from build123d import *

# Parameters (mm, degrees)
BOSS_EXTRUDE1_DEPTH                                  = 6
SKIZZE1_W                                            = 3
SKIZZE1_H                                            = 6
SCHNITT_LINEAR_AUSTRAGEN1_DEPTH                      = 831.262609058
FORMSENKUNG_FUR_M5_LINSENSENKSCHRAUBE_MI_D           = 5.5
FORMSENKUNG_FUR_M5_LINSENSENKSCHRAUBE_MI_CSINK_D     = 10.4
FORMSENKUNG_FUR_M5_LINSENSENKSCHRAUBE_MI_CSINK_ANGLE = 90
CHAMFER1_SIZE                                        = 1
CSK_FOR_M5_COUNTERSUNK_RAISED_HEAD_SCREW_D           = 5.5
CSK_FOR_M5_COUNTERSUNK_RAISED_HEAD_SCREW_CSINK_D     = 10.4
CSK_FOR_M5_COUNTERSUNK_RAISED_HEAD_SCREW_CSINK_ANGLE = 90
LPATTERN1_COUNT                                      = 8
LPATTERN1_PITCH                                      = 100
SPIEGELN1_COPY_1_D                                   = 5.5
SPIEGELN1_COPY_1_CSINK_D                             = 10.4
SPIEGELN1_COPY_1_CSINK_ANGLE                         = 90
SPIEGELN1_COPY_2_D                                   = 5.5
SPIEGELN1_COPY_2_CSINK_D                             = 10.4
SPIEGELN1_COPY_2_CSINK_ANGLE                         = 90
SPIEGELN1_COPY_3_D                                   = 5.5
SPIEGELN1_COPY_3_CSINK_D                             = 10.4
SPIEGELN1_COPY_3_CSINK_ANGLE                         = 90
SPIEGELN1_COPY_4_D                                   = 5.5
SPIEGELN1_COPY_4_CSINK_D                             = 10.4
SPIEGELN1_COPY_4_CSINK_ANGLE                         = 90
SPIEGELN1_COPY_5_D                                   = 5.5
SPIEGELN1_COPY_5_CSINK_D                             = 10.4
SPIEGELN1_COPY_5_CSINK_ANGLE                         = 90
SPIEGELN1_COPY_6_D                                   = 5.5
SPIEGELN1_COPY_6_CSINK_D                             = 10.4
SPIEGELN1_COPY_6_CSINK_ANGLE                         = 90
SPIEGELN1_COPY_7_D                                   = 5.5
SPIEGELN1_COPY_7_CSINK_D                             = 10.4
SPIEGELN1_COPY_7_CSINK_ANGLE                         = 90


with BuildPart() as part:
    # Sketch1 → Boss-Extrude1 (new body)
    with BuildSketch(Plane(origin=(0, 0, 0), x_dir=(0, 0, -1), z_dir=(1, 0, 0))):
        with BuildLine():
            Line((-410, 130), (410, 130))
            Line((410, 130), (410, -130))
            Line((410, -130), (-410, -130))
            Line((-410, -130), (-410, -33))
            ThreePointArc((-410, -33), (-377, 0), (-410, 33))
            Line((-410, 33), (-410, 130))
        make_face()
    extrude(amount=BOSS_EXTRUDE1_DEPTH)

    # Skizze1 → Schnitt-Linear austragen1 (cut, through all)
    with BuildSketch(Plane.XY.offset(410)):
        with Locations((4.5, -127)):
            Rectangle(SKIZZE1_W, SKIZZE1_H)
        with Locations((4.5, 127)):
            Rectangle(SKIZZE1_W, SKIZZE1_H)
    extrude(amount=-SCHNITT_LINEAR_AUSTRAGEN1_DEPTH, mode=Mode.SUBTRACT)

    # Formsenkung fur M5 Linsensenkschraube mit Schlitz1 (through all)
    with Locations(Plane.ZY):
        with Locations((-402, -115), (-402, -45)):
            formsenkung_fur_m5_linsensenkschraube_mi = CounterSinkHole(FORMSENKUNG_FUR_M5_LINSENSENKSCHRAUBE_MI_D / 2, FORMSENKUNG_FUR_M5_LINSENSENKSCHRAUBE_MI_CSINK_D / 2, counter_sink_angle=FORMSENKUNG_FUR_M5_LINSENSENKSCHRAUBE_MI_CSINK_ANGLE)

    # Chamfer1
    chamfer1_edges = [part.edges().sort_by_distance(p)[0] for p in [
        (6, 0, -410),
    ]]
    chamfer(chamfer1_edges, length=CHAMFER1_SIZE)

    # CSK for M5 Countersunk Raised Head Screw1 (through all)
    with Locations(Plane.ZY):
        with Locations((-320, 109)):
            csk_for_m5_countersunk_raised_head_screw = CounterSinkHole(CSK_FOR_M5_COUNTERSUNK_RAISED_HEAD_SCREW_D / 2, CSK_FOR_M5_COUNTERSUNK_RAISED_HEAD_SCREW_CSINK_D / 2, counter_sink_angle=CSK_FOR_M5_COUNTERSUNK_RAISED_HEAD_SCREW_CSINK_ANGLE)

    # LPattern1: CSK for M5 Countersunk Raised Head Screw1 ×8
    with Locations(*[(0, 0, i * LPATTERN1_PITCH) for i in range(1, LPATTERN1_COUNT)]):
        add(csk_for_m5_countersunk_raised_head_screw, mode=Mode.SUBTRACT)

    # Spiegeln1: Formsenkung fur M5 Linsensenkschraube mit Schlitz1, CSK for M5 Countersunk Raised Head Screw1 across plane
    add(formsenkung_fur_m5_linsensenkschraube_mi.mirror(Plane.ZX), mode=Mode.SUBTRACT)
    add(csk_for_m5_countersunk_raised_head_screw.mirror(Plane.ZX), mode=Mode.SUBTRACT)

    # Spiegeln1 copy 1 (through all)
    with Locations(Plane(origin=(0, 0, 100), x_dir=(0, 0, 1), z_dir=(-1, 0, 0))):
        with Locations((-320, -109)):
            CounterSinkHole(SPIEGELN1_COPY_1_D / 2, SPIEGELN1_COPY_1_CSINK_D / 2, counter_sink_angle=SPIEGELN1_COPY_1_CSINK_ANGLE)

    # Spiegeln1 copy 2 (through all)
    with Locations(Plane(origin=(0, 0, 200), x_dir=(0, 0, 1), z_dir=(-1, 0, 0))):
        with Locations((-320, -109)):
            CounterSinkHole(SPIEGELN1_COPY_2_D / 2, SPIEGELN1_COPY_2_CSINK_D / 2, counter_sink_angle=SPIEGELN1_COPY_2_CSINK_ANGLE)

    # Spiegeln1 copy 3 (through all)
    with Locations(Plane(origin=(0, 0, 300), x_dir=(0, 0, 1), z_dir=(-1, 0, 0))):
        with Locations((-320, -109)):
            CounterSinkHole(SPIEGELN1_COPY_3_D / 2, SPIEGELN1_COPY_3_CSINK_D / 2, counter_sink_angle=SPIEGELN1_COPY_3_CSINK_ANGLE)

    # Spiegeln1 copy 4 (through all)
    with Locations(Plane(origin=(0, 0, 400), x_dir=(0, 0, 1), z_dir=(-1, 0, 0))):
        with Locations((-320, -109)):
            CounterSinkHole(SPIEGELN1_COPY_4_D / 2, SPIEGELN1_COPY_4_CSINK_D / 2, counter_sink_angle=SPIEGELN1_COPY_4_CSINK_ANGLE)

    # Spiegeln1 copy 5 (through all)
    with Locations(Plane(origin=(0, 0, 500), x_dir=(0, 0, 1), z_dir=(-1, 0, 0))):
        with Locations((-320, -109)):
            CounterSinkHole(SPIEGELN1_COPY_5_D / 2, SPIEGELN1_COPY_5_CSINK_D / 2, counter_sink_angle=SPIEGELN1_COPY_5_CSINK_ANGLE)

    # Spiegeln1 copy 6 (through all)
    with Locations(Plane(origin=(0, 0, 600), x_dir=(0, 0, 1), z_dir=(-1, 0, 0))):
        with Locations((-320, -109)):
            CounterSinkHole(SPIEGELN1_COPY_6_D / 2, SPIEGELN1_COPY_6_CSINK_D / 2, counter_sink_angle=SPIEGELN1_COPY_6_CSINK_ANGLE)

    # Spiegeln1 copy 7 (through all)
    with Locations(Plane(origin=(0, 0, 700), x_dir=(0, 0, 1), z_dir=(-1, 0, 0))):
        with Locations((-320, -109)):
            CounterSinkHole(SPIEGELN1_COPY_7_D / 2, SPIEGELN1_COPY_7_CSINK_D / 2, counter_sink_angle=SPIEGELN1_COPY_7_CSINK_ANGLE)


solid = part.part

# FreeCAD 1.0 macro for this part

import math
import FreeCAD as App
import Part
import Sketcher
from FreeCAD import Vector
Q = App.Units.Quantity


def edges_at(feature, points):
    """Names of the edges that pass closest to the given points."""
    edges = feature.Shape.Edges
    near = lambda p: min(range(len(edges)), key=lambda i: edges[i].distToShape(Part.Vertex(*p))[0])
    return sorted({f"Edge{near(p) + 1}" for p in points})


def add_polygon(sketch, points):
    """Adds a closed chain of lines whose ends are joined by coincident constraints."""
    first, n = sketch.GeometryCount, len(points)
    for a, b in zip(points, points[1:] + points[:1]):
        sketch.addGeometry(Part.LineSegment(App.Vector(*a, 0), App.Vector(*b, 0)), False)
    for i in range(n):
        sketch.addConstraint(Sketcher.Constraint("Coincident", first + i, 2, first + (i + 1) % n, 1))

doc = App.newDocument("Part")
body = doc.addObject("PartDesign::Body", "Body")

# Sketch on YZ plane
sketch1 = body.newObject("Sketcher::SketchObject", "Sketch")
sketch1.AttachmentSupport = (doc.getObject("YZ_Plane"), [""])
sketch1.MapMode = "FlatFace"
sketch1.addGeometry([
    Part.LineSegment(Vector(130, -410, 0), Vector(130, 410, 0)),  # 0
    Part.LineSegment(Vector(130, 410, 0), Vector(33, 410, 0)),  # 1
    Part.ArcOfCircle(Part.Circle(Vector(0, 410, 0), Vector(0, 0, 1), 33), math.radians(180), math.radians(360)),  # 2
    Part.LineSegment(Vector(-33, 410, 0), Vector(-130, 410, 0)),  # 3
    Part.LineSegment(Vector(-130, 410, 0), Vector(-130, -410, 0)),  # 4
    Part.LineSegment(Vector(-130, -410, 0), Vector(130, -410, 0)),  # 5
], False)
sketch1.addConstraint([
    Sketcher.Constraint("Coincident", 0, 2, 1, 1),
    Sketcher.Constraint("Coincident", 1, 2, 2, 2),
    Sketcher.Constraint("Coincident", 2, 1, 3, 1),
    Sketcher.Constraint("Coincident", 3, 2, 4, 1),
    Sketcher.Constraint("Coincident", 4, 2, 5, 1),
    Sketcher.Constraint("Coincident", 5, 2, 0, 1),
    Sketcher.Constraint("Vertical", 0),
    Sketcher.Constraint("Horizontal", 1),
    Sketcher.Constraint("Horizontal", 3),
    Sketcher.Constraint("Vertical", 4),
    Sketcher.Constraint("Horizontal", 5),
    Sketcher.Constraint("Symmetric", 0, 2, 4, 2, -1, 1),
    Sketcher.Constraint("Symmetric", 1, 2, 2, 1, -2),
    Sketcher.Constraint("Horizontal", 2, 3, 0, 2),
    Sketcher.Constraint("Radius", 2, Q("33 mm")),
    Sketcher.Constraint("DistanceX", 1, 2, 1, 1, Q("97 mm")),
    Sketcher.Constraint("DistanceY", 0, 1, 0, 2, Q("820 mm")),
])
pad1 = body.newObject("PartDesign::Pad", "Pad")
pad1.Profile = sketch1
pad1.Length = 6

# Sketch on XY plane
sketch2 = body.newObject("Sketcher::SketchObject", "Sketch001")
sketch2.AttachmentSupport = (doc.getObject("XY_Plane"), [""])
sketch2.MapMode = "FlatFace"
sketch2.AttachmentOffset = App.Placement(Vector(0, 0, 410), App.Rotation())
add_polygon(sketch2, [(3, -124), (3, -130), (6, -130), (6, -124)])  # lines 0-3
add_polygon(sketch2, [(3, 130), (3, 124), (6, 124), (6, 130)])  # lines 4-7
sketch2.addConstraint([
    Sketcher.Constraint("Vertical", 0),
    Sketcher.Constraint("Horizontal", 1),
    Sketcher.Constraint("Vertical", 2),
    Sketcher.Constraint("Horizontal", 3),
    Sketcher.Constraint("Vertical", 4),
    Sketcher.Constraint("Horizontal", 5),
    Sketcher.Constraint("Vertical", 6),
    Sketcher.Constraint("Horizontal", 7),
    Sketcher.Constraint("Symmetric", 3, 2, 4, 2, -1),
    Sketcher.Constraint("Symmetric", 1, 2, 6, 2, -1),
    Sketcher.Constraint("DistanceX", 1, 1, 1, 2, Q("3 mm")),
    Sketcher.Constraint("DistanceY", 0, 2, 0, 1, Q("6 mm")),
    Sketcher.Constraint("DistanceX", -1, 1, 0, 2, Q("3 mm")),
    Sketcher.Constraint("DistanceY", 0, 2, -1, 1, Q("130 mm")),
])
pocket1 = body.newObject("PartDesign::Pocket", "Pocket")
pocket1.Profile = sketch2
pocket1.Type = "ThroughAll"

# Sketch on YZ plane
sketch3 = body.newObject("Sketcher::SketchObject", "Sketch002")
sketch3.AttachmentSupport = (doc.getObject("YZ_Plane"), [""])
sketch3.MapMode = "FlatFace"
sketch3.addGeometry([
    Part.Circle(Vector(-115, -402, 0), Vector(0, 0, 1), 2.8),
    Part.Circle(Vector(-45, -402, 0), Vector(0, 0, 1), 2.8),
], False)
sketch3.addConstraint([
    Sketcher.Constraint("Equal", 0, 1),
    Sketcher.Constraint("Horizontal", 0, 3, 1, 3),
    Sketcher.Constraint("Diameter", 0, Q("5.5 mm")),
    Sketcher.Constraint("DistanceX", 0, 3, -1, 1, Q("115 mm")),
    Sketcher.Constraint("DistanceY", 0, 3, -1, 1, Q("402 mm")),
    Sketcher.Constraint("DistanceX", 1, 3, -1, 1, Q("45 mm")),
])
doc.recompute()
hole = body.newObject("PartDesign::Hole", "Hole")
hole.Profile = sketch3
hole.ThreadType = "None"
hole.Diameter = 5.5
hole.DepthType = "ThroughAll"
hole.HoleCutType = "Countersink"
hole.HoleCutDiameter = 10.4
hole.HoleCutCountersinkAngle = 90
hole.Reversed = True
doc.recompute()

chamfer = body.newObject("PartDesign::Chamfer", "Chamfer")
chamfer.Base = (hole, edges_at(hole, [(6, 0, -410)]))
chamfer.Size = 1

# Sketch on YZ plane
sketch4 = body.newObject("Sketcher::SketchObject", "Sketch003")
sketch4.AttachmentSupport = (doc.getObject("YZ_Plane"), [""])
sketch4.MapMode = "FlatFace"
sketch4.addGeometry(Part.Circle(Vector(109, -320, 0), Vector(0, 0, 1), 2.8), False)
sketch4.addConstraint([
    Sketcher.Constraint("Diameter", 0, Q("5.5 mm")),
    Sketcher.Constraint("DistanceX", -1, 1, 0, 3, Q("109 mm")),
    Sketcher.Constraint("DistanceY", 0, 3, -1, 1, Q("320 mm")),
])
doc.recompute()
hole2 = body.newObject("PartDesign::Hole", "Hole001")
hole2.Profile = sketch4
hole2.ThreadType = "None"
hole2.Diameter = 5.5
hole2.DepthType = "ThroughAll"
hole2.HoleCutType = "Countersink"
hole2.HoleCutDiameter = 10.4
hole2.HoleCutCountersinkAngle = 90
hole2.Reversed = True
doc.recompute()

linearpattern = body.newObject("PartDesign::LinearPattern", "LinearPattern")
linearpattern.Originals = [hole2]
linearpattern.Direction = (doc.getObject("Z_Axis"), [""])
linearpattern.Mode = "offset"
linearpattern.Offset = 100
linearpattern.Occurrences = 8
body.Tip = linearpattern
doc.recompute()

mirrored = body.newObject("PartDesign::Mirrored", "Mirrored")
mirrored.Originals = [hole, hole2]
mirrored.MirrorPlane = (doc.getObject("XZ_Plane"), [""])
body.Tip = mirrored

# Sketch on YZ plane
sketch5 = body.newObject("Sketcher::SketchObject", "Sketch004")
sketch5.AttachmentSupport = (doc.getObject("YZ_Plane"), [""])
sketch5.MapMode = "FlatFace"
sketch5.addGeometry(Part.Circle(Vector(-109, -220, 0), Vector(0, 0, 1), 2.8), False)
sketch5.addConstraint([
    Sketcher.Constraint("Diameter", 0, Q("5.5 mm")),
    Sketcher.Constraint("DistanceX", 0, 3, -1, 1, Q("109 mm")),
    Sketcher.Constraint("DistanceY", 0, 3, -1, 1, Q("220 mm")),
])
doc.recompute()
hole3 = body.newObject("PartDesign::Hole", "Hole002")
hole3.Profile = sketch5
hole3.ThreadType = "None"
hole3.Diameter = 5.5
hole3.DepthType = "ThroughAll"
hole3.HoleCutType = "Countersink"
hole3.HoleCutDiameter = 10.4
hole3.HoleCutCountersinkAngle = 90
hole3.Reversed = True

# Sketch on YZ plane
sketch6 = body.newObject("Sketcher::SketchObject", "Sketch005")
sketch6.AttachmentSupport = (doc.getObject("YZ_Plane"), [""])
sketch6.MapMode = "FlatFace"
sketch6.addGeometry(Part.Circle(Vector(-109, -120, 0), Vector(0, 0, 1), 2.8), False)
sketch6.addConstraint([
    Sketcher.Constraint("Diameter", 0, Q("5.5 mm")),
    Sketcher.Constraint("DistanceX", 0, 3, -1, 1, Q("109 mm")),
    Sketcher.Constraint("DistanceY", 0, 3, -1, 1, Q("120 mm")),
])
doc.recompute()
hole4 = body.newObject("PartDesign::Hole", "Hole003")
hole4.Profile = sketch6
hole4.ThreadType = "None"
hole4.Diameter = 5.5
hole4.DepthType = "ThroughAll"
hole4.HoleCutType = "Countersink"
hole4.HoleCutDiameter = 10.4
hole4.HoleCutCountersinkAngle = 90
hole4.Reversed = True

# Sketch on YZ plane
sketch7 = body.newObject("Sketcher::SketchObject", "Sketch006")
sketch7.AttachmentSupport = (doc.getObject("YZ_Plane"), [""])
sketch7.MapMode = "FlatFace"
sketch7.addGeometry(Part.Circle(Vector(-109, -20, 0), Vector(0, 0, 1), 2.8), False)
sketch7.addConstraint([
    Sketcher.Constraint("Diameter", 0, Q("5.5 mm")),
    Sketcher.Constraint("DistanceX", 0, 3, -1, 1, Q("109 mm")),
    Sketcher.Constraint("DistanceY", 0, 3, -1, 1, Q("20 mm")),
])
doc.recompute()
hole5 = body.newObject("PartDesign::Hole", "Hole004")
hole5.Profile = sketch7
hole5.ThreadType = "None"
hole5.Diameter = 5.5
hole5.DepthType = "ThroughAll"
hole5.HoleCutType = "Countersink"
hole5.HoleCutDiameter = 10.4
hole5.HoleCutCountersinkAngle = 90
hole5.Reversed = True

# Sketch on YZ plane
sketch8 = body.newObject("Sketcher::SketchObject", "Sketch007")
sketch8.AttachmentSupport = (doc.getObject("YZ_Plane"), [""])
sketch8.MapMode = "FlatFace"
sketch8.addGeometry(Part.Circle(Vector(-109, 80, 0), Vector(0, 0, 1), 2.8), False)
sketch8.addConstraint([
    Sketcher.Constraint("Diameter", 0, Q("5.5 mm")),
    Sketcher.Constraint("DistanceX", 0, 3, -1, 1, Q("109 mm")),
    Sketcher.Constraint("DistanceY", -1, 1, 0, 3, Q("80 mm")),
])
doc.recompute()
hole6 = body.newObject("PartDesign::Hole", "Hole005")
hole6.Profile = sketch8
hole6.ThreadType = "None"
hole6.Diameter = 5.5
hole6.DepthType = "ThroughAll"
hole6.HoleCutType = "Countersink"
hole6.HoleCutDiameter = 10.4
hole6.HoleCutCountersinkAngle = 90
hole6.Reversed = True

# Sketch on YZ plane
sketch9 = body.newObject("Sketcher::SketchObject", "Sketch008")
sketch9.AttachmentSupport = (doc.getObject("YZ_Plane"), [""])
sketch9.MapMode = "FlatFace"
sketch9.addGeometry(Part.Circle(Vector(-109, 180, 0), Vector(0, 0, 1), 2.8), False)
sketch9.addConstraint([
    Sketcher.Constraint("Diameter", 0, Q("5.5 mm")),
    Sketcher.Constraint("DistanceX", 0, 3, -1, 1, Q("109 mm")),
    Sketcher.Constraint("DistanceY", -1, 1, 0, 3, Q("180 mm")),
])
doc.recompute()
hole7 = body.newObject("PartDesign::Hole", "Hole006")
hole7.Profile = sketch9
hole7.ThreadType = "None"
hole7.Diameter = 5.5
hole7.DepthType = "ThroughAll"
hole7.HoleCutType = "Countersink"
hole7.HoleCutDiameter = 10.4
hole7.HoleCutCountersinkAngle = 90
hole7.Reversed = True

# Sketch on YZ plane
sketch10 = body.newObject("Sketcher::SketchObject", "Sketch009")
sketch10.AttachmentSupport = (doc.getObject("YZ_Plane"), [""])
sketch10.MapMode = "FlatFace"
sketch10.addGeometry(Part.Circle(Vector(-109, 280, 0), Vector(0, 0, 1), 2.8), False)
sketch10.addConstraint([
    Sketcher.Constraint("Diameter", 0, Q("5.5 mm")),
    Sketcher.Constraint("DistanceX", 0, 3, -1, 1, Q("109 mm")),
    Sketcher.Constraint("DistanceY", -1, 1, 0, 3, Q("280 mm")),
])
doc.recompute()
hole8 = body.newObject("PartDesign::Hole", "Hole007")
hole8.Profile = sketch10
hole8.ThreadType = "None"
hole8.Diameter = 5.5
hole8.DepthType = "ThroughAll"
hole8.HoleCutType = "Countersink"
hole8.HoleCutDiameter = 10.4
hole8.HoleCutCountersinkAngle = 90
hole8.Reversed = True

# Sketch on YZ plane
sketch11 = body.newObject("Sketcher::SketchObject", "Sketch010")
sketch11.AttachmentSupport = (doc.getObject("YZ_Plane"), [""])
sketch11.MapMode = "FlatFace"
sketch11.addGeometry(Part.Circle(Vector(-109, 380, 0), Vector(0, 0, 1), 2.8), False)
sketch11.addConstraint([
    Sketcher.Constraint("Diameter", 0, Q("5.5 mm")),
    Sketcher.Constraint("DistanceX", 0, 3, -1, 1, Q("109 mm")),
    Sketcher.Constraint("DistanceY", -1, 1, 0, 3, Q("380 mm")),
])
doc.recompute()
hole9 = body.newObject("PartDesign::Hole", "Hole008")
hole9.Profile = sketch11
hole9.ThreadType = "None"
hole9.Diameter = 5.5
hole9.DepthType = "ThroughAll"
hole9.HoleCutType = "Countersink"
hole9.HoleCutDiameter = 10.4
hole9.HoleCutCountersinkAngle = 90
hole9.Reversed = True

doc.recompute()
